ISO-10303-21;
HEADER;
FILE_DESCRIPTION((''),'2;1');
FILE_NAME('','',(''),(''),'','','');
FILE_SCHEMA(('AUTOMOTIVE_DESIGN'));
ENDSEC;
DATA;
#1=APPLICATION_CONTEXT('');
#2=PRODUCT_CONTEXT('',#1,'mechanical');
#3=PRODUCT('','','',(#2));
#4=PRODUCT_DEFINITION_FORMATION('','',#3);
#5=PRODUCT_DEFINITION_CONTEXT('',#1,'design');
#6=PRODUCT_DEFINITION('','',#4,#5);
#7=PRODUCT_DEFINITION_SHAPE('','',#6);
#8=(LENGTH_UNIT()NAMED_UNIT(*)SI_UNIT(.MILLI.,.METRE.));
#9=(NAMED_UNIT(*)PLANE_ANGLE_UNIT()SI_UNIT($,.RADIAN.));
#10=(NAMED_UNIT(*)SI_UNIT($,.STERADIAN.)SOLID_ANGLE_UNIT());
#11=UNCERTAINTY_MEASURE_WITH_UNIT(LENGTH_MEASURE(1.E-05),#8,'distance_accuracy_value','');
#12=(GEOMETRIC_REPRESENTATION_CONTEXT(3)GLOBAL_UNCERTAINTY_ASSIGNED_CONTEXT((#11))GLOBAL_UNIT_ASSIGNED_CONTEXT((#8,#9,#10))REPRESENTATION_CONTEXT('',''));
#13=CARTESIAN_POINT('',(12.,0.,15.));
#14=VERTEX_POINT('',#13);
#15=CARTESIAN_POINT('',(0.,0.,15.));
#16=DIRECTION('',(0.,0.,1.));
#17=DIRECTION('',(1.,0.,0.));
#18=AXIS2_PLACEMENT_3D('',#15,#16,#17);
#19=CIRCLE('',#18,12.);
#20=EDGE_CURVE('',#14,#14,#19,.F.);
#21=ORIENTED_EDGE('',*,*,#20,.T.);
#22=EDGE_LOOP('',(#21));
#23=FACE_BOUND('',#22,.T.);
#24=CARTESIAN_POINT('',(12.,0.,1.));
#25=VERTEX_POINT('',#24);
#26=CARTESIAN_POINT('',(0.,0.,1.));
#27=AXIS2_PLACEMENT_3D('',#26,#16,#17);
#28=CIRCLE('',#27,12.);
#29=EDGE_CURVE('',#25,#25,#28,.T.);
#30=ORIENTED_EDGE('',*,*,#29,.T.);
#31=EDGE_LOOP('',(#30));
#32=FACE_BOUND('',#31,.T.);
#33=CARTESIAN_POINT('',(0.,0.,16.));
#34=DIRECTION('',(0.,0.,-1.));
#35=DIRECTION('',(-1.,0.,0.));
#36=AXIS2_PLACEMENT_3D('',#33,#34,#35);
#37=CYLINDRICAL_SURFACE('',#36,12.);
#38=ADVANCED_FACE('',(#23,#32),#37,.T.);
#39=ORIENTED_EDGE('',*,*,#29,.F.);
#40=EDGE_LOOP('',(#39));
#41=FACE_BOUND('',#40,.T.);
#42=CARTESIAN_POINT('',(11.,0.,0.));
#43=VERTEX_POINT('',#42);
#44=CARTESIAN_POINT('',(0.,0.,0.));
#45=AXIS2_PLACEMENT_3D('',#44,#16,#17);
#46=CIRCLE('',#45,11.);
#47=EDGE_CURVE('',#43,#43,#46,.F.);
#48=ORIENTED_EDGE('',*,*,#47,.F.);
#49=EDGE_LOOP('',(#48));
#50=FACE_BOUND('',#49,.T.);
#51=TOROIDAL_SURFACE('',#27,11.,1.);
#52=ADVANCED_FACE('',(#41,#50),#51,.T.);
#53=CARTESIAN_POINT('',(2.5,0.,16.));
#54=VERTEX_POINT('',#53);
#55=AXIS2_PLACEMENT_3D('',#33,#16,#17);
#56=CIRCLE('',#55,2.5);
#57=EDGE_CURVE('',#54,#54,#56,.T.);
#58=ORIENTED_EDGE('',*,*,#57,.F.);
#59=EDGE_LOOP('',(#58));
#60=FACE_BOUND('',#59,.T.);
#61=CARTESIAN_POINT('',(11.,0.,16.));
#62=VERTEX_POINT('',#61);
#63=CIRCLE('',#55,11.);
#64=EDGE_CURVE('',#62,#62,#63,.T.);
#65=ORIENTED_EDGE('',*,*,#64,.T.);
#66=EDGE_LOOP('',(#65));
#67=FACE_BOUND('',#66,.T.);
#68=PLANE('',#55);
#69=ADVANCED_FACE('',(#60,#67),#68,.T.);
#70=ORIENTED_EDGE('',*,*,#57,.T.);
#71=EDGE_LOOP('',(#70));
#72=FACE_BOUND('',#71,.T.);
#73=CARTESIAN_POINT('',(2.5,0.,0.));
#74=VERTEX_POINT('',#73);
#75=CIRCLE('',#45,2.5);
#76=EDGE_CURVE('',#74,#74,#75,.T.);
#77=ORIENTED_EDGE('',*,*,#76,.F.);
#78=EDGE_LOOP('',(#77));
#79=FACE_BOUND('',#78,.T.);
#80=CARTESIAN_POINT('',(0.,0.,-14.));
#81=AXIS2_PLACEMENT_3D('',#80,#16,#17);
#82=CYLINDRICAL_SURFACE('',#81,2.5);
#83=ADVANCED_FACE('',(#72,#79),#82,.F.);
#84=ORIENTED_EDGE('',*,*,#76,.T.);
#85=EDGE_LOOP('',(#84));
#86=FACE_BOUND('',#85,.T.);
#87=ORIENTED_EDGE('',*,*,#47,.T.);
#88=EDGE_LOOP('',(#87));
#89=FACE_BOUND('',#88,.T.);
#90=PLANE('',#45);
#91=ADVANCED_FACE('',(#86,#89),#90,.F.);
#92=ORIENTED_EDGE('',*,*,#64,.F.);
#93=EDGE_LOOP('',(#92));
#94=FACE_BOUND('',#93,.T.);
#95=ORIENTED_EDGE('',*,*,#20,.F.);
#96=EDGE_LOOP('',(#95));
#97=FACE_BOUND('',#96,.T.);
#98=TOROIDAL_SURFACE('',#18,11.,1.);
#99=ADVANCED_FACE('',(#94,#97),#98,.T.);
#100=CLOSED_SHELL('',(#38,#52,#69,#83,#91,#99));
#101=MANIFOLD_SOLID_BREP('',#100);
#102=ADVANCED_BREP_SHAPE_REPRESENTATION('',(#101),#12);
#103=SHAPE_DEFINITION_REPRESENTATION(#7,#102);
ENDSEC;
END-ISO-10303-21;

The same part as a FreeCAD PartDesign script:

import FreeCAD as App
import Part
import Sketcher
from FreeCAD import Vector


def edges_at(feature, points):
    """Names of the edges that pass closest to the given points."""
    edges = feature.Shape.Edges
    near = lambda p: min(range(len(edges)), key=lambda i: edges[i].distToShape(Part.Vertex(*p))[0])
    return sorted({f"Edge{near(p) + 1}" for p in points})

doc = App.newDocument("Part")
body = doc.addObject("PartDesign::Body", "Body")

sketch1 = doc.addObject("Sketcher::SketchObject", "Sketch")
body.addObject(sketch1)
sketch1.AttachmentSupport = (doc.XY_Plane, [""])
sketch1.MapMode = "FlatFace"
sketch1.addGeometry(Part.Circle(Vector(0, 0, 0), Vector(0, 0, 1), 12), False)
sketch1.addConstraint([
    Sketcher.Constraint("Coincident", 0, 3, -1, 1),
    Sketcher.Constraint("Diameter", 0, 24.0),
])
pad1 = doc.addObject("PartDesign::Pad", "Pad")
body.addObject(pad1)
pad1.Profile = sketch1
pad1.Length = 16

sketch2 = doc.addObject("Sketcher::SketchObject", "Sketch001")
body.addObject(sketch2)
sketch2.AttachmentSupport = (doc.XY_Plane, [""])
sketch2.MapMode = "FlatFace"
sketch2.AttachmentOffset = App.Placement(Vector(0, 0, 16), App.Rotation())
sketch2.addGeometry(Part.Circle(Vector(0, 0, 0), Vector(0, 0, 1), 2.5), False)
sketch2.addConstraint([
    Sketcher.Constraint("Coincident", 0, 3, -1, 1),
    Sketcher.Constraint("Diameter", 0, 5.0),
])
pocket1 = doc.addObject("PartDesign::Pocket", "Pocket")
body.addObject(pocket1)
pocket1.Profile = sketch2
pocket1.Length = 30
doc.recompute()

fillet = doc.addObject("PartDesign::Fillet", "Fillet")
body.addObject(fillet)
fillet.Base = (pocket1, edges_at(pocket1, [(-12, 0, 0), (-12, 0, 16)]))
fillet.Radius = 1

doc.recompute()
